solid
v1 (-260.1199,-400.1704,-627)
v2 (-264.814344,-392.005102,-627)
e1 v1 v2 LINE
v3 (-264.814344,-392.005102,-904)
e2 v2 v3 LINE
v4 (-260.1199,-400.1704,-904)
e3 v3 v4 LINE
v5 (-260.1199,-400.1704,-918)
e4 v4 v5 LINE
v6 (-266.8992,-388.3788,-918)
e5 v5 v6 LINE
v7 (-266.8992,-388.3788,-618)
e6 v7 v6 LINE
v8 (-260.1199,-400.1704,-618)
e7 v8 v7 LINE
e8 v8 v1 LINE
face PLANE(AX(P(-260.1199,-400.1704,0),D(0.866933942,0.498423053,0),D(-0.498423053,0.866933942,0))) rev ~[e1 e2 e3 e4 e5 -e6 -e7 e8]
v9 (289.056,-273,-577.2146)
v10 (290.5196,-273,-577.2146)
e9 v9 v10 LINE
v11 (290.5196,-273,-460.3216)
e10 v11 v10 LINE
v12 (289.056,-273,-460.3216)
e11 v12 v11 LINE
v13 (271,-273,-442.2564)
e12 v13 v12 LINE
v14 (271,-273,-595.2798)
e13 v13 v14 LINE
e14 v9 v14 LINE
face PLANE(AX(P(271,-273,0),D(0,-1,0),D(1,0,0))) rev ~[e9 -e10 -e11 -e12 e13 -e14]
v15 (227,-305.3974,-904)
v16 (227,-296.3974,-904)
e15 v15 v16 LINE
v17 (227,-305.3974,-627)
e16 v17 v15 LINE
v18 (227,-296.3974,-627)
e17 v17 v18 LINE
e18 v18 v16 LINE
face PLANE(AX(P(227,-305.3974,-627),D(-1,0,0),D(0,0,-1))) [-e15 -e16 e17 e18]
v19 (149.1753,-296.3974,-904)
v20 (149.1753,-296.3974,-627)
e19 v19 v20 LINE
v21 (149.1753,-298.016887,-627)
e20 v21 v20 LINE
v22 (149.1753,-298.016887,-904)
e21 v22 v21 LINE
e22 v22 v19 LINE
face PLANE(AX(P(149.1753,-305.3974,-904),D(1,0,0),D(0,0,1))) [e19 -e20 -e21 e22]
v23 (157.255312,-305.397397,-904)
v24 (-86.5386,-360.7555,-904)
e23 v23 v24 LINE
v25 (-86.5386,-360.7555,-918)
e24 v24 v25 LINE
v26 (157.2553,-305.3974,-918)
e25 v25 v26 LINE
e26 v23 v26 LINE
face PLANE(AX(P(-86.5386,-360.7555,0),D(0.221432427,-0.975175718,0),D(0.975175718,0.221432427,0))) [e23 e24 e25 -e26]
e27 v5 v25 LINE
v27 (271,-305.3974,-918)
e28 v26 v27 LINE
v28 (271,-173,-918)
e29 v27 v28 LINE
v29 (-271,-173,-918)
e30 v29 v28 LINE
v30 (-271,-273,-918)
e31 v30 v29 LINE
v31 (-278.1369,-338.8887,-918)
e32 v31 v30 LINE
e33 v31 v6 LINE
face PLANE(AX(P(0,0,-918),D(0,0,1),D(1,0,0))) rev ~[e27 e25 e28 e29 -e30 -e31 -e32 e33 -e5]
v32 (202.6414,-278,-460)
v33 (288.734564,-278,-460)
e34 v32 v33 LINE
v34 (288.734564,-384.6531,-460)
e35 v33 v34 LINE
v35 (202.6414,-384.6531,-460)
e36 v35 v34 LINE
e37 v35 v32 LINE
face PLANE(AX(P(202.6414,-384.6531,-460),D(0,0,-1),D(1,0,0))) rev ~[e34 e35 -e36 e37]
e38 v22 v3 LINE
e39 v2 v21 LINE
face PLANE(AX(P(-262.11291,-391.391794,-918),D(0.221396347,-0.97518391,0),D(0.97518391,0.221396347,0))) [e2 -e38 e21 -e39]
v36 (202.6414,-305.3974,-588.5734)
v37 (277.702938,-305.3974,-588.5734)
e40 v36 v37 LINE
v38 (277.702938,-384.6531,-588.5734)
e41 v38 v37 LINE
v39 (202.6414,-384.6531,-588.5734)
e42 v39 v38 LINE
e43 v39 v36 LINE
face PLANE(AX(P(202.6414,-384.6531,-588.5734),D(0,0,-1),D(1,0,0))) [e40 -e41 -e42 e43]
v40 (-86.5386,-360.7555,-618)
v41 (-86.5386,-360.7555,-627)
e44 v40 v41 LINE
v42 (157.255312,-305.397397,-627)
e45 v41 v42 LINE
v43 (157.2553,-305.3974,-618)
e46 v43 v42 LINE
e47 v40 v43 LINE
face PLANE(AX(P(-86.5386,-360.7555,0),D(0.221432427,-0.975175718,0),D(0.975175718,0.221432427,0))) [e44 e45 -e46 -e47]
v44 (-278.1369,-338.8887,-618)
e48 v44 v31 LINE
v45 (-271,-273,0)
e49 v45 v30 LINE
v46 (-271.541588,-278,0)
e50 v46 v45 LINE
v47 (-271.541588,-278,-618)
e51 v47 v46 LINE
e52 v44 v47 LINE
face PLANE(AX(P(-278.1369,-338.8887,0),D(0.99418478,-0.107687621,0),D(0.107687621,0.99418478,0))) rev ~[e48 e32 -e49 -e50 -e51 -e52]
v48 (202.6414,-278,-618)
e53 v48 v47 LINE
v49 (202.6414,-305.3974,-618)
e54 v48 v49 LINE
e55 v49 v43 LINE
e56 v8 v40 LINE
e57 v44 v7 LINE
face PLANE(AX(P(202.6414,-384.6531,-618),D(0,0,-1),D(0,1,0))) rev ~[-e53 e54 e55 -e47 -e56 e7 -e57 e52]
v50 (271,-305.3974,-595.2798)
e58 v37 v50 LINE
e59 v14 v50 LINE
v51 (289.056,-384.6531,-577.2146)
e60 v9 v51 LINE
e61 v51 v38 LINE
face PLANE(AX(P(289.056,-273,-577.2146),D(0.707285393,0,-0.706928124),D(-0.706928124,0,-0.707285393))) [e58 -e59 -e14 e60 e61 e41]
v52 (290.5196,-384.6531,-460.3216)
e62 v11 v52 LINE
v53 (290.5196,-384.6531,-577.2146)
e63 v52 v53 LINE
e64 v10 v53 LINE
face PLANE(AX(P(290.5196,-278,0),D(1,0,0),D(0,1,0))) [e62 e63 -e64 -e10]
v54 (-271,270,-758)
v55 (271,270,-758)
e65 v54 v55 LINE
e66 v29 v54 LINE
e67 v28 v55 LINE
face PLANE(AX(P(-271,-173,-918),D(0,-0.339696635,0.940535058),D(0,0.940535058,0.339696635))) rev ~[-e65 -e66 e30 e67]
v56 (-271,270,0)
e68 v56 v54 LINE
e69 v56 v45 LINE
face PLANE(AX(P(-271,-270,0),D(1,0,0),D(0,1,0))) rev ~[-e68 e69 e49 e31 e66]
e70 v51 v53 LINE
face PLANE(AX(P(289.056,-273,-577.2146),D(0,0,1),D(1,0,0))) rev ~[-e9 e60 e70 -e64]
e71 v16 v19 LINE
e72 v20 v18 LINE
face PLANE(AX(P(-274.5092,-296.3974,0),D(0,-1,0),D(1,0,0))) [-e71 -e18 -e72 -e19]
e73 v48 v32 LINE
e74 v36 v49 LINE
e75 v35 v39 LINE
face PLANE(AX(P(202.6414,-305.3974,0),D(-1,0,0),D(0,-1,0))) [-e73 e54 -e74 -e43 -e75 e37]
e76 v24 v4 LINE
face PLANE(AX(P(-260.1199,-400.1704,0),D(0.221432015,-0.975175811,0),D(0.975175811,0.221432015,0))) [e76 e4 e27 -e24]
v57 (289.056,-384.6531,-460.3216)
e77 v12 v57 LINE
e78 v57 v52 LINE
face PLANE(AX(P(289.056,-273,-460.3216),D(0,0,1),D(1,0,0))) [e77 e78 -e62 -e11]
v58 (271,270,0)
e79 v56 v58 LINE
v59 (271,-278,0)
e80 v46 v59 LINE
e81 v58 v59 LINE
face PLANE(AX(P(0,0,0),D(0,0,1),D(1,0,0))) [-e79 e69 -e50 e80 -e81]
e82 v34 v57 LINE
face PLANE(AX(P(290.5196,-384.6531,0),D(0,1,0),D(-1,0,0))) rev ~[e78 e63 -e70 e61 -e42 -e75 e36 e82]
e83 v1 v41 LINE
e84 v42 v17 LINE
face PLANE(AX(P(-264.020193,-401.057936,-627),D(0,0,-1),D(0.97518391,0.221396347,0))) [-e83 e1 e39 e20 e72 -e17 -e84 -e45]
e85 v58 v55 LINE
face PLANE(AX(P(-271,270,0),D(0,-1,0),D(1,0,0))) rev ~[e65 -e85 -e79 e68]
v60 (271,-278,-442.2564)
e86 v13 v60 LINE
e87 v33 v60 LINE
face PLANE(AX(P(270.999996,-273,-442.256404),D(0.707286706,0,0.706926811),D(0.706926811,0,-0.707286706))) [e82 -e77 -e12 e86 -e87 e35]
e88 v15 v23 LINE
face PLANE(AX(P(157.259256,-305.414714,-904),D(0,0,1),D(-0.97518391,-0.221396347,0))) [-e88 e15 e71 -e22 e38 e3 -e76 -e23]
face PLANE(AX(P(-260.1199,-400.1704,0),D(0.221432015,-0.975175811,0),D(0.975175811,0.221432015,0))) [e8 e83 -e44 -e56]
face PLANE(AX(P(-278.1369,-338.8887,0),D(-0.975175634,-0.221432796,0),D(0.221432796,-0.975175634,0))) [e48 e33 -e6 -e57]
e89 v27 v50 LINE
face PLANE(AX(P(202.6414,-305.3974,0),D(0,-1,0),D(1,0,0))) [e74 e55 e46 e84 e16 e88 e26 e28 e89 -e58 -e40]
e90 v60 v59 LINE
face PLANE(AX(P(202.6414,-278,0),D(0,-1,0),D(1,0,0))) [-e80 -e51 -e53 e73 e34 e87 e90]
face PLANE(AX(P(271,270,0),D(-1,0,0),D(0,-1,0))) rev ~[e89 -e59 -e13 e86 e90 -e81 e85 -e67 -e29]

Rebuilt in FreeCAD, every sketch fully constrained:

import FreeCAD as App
import Part
import Sketcher
Q = App.Units.Quantity


def add_polygon(sketch, points):
    """Adds a closed chain of lines whose ends are joined by coincident constraints."""
    first, n = sketch.GeometryCount, len(points)
    for a, b in zip(points, points[1:] + points[:1]):
        sketch.addGeometry(Part.LineSegment(App.Vector(*a, 0), App.Vector(*b, 0)), False)
    for i in range(n):
        sketch.addConstraint(Sketcher.Constraint("Coincident", first + i, 2, first + (i + 1) % n, 1))

doc = App.newDocument("Part")
body = doc.addObject("PartDesign::Body", "Body")

# Sketch on XY plane
sketch1 = body.newObject("Sketcher::SketchObject", "Sketch")
sketch1.AttachmentSupport = (doc.getObject("XY_Plane"), [""])
sketch1.MapMode = "FlatFace"
add_polygon(sketch1, [(271, -273), (271, 270), (-271, 270), (-271, -273), (-278.1369, -338.8887), (-266.8992, -388.3788), (-260.1199, -400.1704), (-86.5386, -360.7555), (157.2553, -305.3974), (202.6414, -305.3974), (202.6414, -384.6531), (290.5196, -384.6531), (290.5196, -273)])  # lines 0-12
sketch1.addConstraint(Sketcher.Constraint("Vertical", 0))
sketch1.addConstraint(Sketcher.Constraint("Horizontal", 1))
sketch1.addConstraint(Sketcher.Constraint("Vertical", 2))
sketch1.addConstraint(Sketcher.Constraint("Horizontal", 8))
sketch1.addConstraint(Sketcher.Constraint("Vertical", 9))
sketch1.addConstraint(Sketcher.Constraint("Horizontal", 10))
sketch1.addConstraint(Sketcher.Constraint("Vertical", 11))
sketch1.addConstraint(Sketcher.Constraint("Horizontal", 12))
sketch1.addConstraint(Sketcher.Constraint("DistanceX", 1, 2, 1, 1, Q("542 mm")))
sketch1.addConstraint(Sketcher.Constraint("DistanceY", 0, 1, 0, 2, Q("543 mm")))
sketch1.addConstraint(Sketcher.Constraint("DistanceY", 2, 2, 2, 1, Q("543 mm")))
sketch1.addConstraint(Sketcher.Constraint("Distance", 6, Q("178 mm")))
sketch1.addConstraint(Sketcher.Constraint("Distance", 7, Q("250 mm")))
sketch1.addConstraint(Sketcher.Constraint("DistanceX", -1, 1, 0, 2, Q("271 mm")))
sketch1.addConstraint(Sketcher.Constraint("DistanceY", -1, 1, 0, 2, Q("270 mm")))
sketch1.addConstraint(Sketcher.Constraint("Distance", 4, Q("50.75 mm")))
sketch1.addConstraint(Sketcher.Constraint("DistanceX", 8, 1, 8, 2, Q("45.386 mm")))
sketch1.addConstraint(Sketcher.Constraint("DistanceY", 11, 1, 11, 2, Q("111.653 mm")))
sketch1.addConstraint(Sketcher.Constraint("DistanceX", 5, 2, -1, 1, Q("260.12 mm")))
sketch1.addConstraint(Sketcher.Constraint("DistanceY", 4, 2, 3, 2, Q("49.49 mm")))
sketch1.addConstraint(Sketcher.Constraint("DistanceX", 6, 2, 8, 2, Q("289.18 mm")))
sketch1.addConstraint(Sketcher.Constraint("Distance", 3, Q("66.274 mm")))
sketch1.addConstraint(Sketcher.Constraint("DistanceX", 10, 1, 10, 2, Q("87.8782 mm")))
sketch1.addConstraint(Sketcher.Constraint("DistanceX", 12, 2, 12, 1, Q("19.5196 mm")))
sketch1.addConstraint(Sketcher.Constraint("DistanceY", 9, 2, 9, 1, Q("79.2557 mm")))
sketch1.addConstraint(Sketcher.Constraint("DistanceX", 3, 2, -1, 1, Q("278.137 mm")))
pad1 = body.newObject("PartDesign::Pad", "Pad")
pad1.Profile = sketch1
pad1.Length = 918
pad1.Reversed = True

# Sketch on YZ plane
sketch2 = body.newObject("Sketcher::SketchObject", "Sketch001")
sketch2.AttachmentSupport = (doc.getObject("YZ_Plane"), [""])
sketch2.MapMode = "FlatFace"
sketch2.AttachmentOffset = App.Placement(App.Vector(0, 0, 202.6414), App.Rotation())
add_polygon(sketch2, [(-536, -618), (-536, 0), (-278, 0), (-278, -618)])  # lines 0-3
sketch2.addConstraint(Sketcher.Constraint("Vertical", 0))
sketch2.addConstraint(Sketcher.Constraint("Horizontal", 1))
sketch2.addConstraint(Sketcher.Constraint("Vertical", 2))
sketch2.addConstraint(Sketcher.Constraint("Horizontal", 3))
sketch2.addConstraint(Sketcher.Constraint("PointOnObject", 0, 2, -1))
sketch2.addConstraint(Sketcher.Constraint("DistanceY", 0, 1, 0, 2, Q("618 mm")))
sketch2.addConstraint(Sketcher.Constraint("DistanceX", 1, 2, -1, 1, Q("278 mm")))
sketch2.addConstraint(Sketcher.Constraint("DistanceX", 1, 1, 1, 2, Q("258.37 mm")))
pocket1 = body.newObject("PartDesign::Pocket", "Pocket")
pocket1.Profile = sketch2
pocket1.Type = "ThroughAll"

# Sketch on XZ plane
sketch3 = body.newObject("Sketcher::SketchObject", "Sketch002")
sketch3.AttachmentSupport = (doc.getObject("XZ_Plane"), [""])
sketch3.MapMode = "FlatFace"
sketch3.AttachmentOffset = App.Placement(App.Vector(0, 0, 384.6531), App.Rotation())
add_polygon(sketch3, [(203, 0), (203, -460), (291, -460), (291, 0)])  # lines 0-3
sketch3.addConstraint(Sketcher.Constraint("Vertical", 0))
sketch3.addConstraint(Sketcher.Constraint("Horizontal", 1))
sketch3.addConstraint(Sketcher.Constraint("Vertical", 2))
sketch3.addConstraint(Sketcher.Constraint("Horizontal", 3))
sketch3.addConstraint(Sketcher.Constraint("PointOnObject", 2, 2, -1))
sketch3.addConstraint(Sketcher.Constraint("DistanceY", 0, 2, 0, 1, Q("460 mm")))
sketch3.addConstraint(Sketcher.Constraint("DistanceX", 1, 1, 1, 2, Q("87.8782 mm")))
sketch3.addConstraint(Sketcher.Constraint("DistanceX", -1, 1, 0, 2, Q("202.6414 mm")))
pocket2 = body.newObject("PartDesign::Pocket", "Pocket001")
pocket2.Profile = sketch3
pocket2.Length = 106.6531

# Sketch on XZ plane
sketch4 = body.newObject("Sketcher::SketchObject", "Sketch003")
sketch4.AttachmentSupport = (doc.getObject("XZ_Plane"), [""])
sketch4.MapMode = "FlatFace"
sketch4.AttachmentOffset = App.Placement(App.Vector(0, 0, 273), App.Rotation())
add_polygon(sketch4, [(271, 0), (290.5, 0), (290.5, -460.3), (289.1, -460.3), (271, -442.3)])  # lines 0-4
add_polygon(sketch4, [(289.1, -577.2), (290.5, -577.2), (290.5, -918), (271, -918), (271, -595.3)])  # lines 5-9
sketch4.addConstraint(Sketcher.Constraint("Horizontal", 0))
sketch4.addConstraint(Sketcher.Constraint("Vertical", 1))
sketch4.addConstraint(Sketcher.Constraint("Horizontal", 2))
sketch4.addConstraint(Sketcher.Constraint("Vertical", 4))
sketch4.addConstraint(Sketcher.Constraint("Horizontal", 5))
sketch4.addConstraint(Sketcher.Constraint("Vertical", 6))
sketch4.addConstraint(Sketcher.Constraint("Horizontal", 7))
sketch4.addConstraint(Sketcher.Constraint("Vertical", 8))
sketch4.addConstraint(Sketcher.Constraint("PointOnObject", 0, 2, -1))
sketch4.addConstraint(Sketcher.Constraint("Vertical", 1, 2, 5, 2))
sketch4.addConstraint(Sketcher.Constraint("Vertical", 4, 2, 7, 2))
sketch4.addConstraint(Sketcher.Constraint("Vertical", 2, 2, 9, 2))
sketch4.addConstraint(Sketcher.Constraint("Equal", 3, 9))
sketch4.addConstraint(Sketcher.Constraint("DistanceX", -1, 1, 3, 2, Q("271 mm")))
sketch4.addConstraint(Sketcher.Constraint("DistanceY", 6, 2, -1, 1, Q("918 mm")))
sketch4.addConstraint(Sketcher.Constraint("DistanceX", 0, 1, 0, 2, Q("19.5196 mm")))
sketch4.addConstraint(Sketcher.Constraint("DistanceX", 2, 2, 2, 1, Q("1.4636 mm")))
sketch4.addConstraint(Sketcher.Constraint("DistanceY", 1, 2, 1, 1, Q("460.3216 mm")))
sketch4.addConstraint(Sketcher.Constraint("DistanceY", 4, 1, 4, 2, Q("442.2564 mm")))
sketch4.addConstraint(Sketcher.Constraint("DistanceY", 6, 2, 6, 1, Q("340.7854 mm")))
pocket3 = body.newObject("PartDesign::Pocket", "Pocket002")
pocket3.Profile = sketch4
pocket3.Length = 111.6531
pocket3.Reversed = True

# Sketch on an angled plane
sketch5 = body.newObject("Sketcher::SketchObject", "Sketch004")
sketch5.Placement = App.Placement(App.Vector(-260.1199, -400.1704, -918), App.Rotation(App.Vector(0.97518391, 0.221396347, 0), App.Vector(0, 0, 1.000000001), App.Vector(0.221396347, -0.97518391, 0), "ZXY"))
add_polygon(sketch5, [(428, 291), (-4, 291), (-4, 14), (428, 14)])  # lines 0-3
sketch5.addConstraint(Sketcher.Constraint("Horizontal", 0))
sketch5.addConstraint(Sketcher.Constraint("Vertical", 1))
sketch5.addConstraint(Sketcher.Constraint("Horizontal", 2))
sketch5.addConstraint(Sketcher.Constraint("Vertical", 3))
sketch5.addConstraint(Sketcher.Constraint("DistanceX", 0, 2, 0, 1, Q("432 mm")))
sketch5.addConstraint(Sketcher.Constraint("DistanceY", 1, 2, 1, 1, Q("277 mm")))
sketch5.addConstraint(Sketcher.Constraint("DistanceX", 0, 2, -1, 1, Q("4 mm")))
sketch5.addConstraint(Sketcher.Constraint("DistanceY", -1, 1, 0, 2, Q("291 mm")))
pocket4 = body.newObject("PartDesign::Pocket", "Pocket003")
pocket4.Profile = sketch5
pocket4.Length = 9

# Sketch on XZ plane
sketch6 = body.newObject("Sketcher::SketchObject", "Sketch005")
sketch6.AttachmentSupport = (doc.getObject("XZ_Plane"), [""])
sketch6.MapMode = "FlatFace"
sketch6.AttachmentOffset = App.Placement(App.Vector(0, 0, 305.3974), App.Rotation())
add_polygon(sketch6, [(227, -627), (149, -627), (149, -904), (227, -904)])  # lines 0-3
sketch6.addConstraint(Sketcher.Constraint("Horizontal", 0))
sketch6.addConstraint(Sketcher.Constraint("Vertical", 1))
sketch6.addConstraint(Sketcher.Constraint("Horizontal", 2))
sketch6.addConstraint(Sketcher.Constraint("Vertical", 3))
sketch6.addConstraint(Sketcher.Constraint("DistanceY", 1, 2, 1, 1, Q("277 mm")))
sketch6.addConstraint(Sketcher.Constraint("DistanceY", 0, 2, -1, 1, Q("627 mm")))
sketch6.addConstraint(Sketcher.Constraint("DistanceX", -1, 1, 2, 2, Q("227 mm")))
sketch6.addConstraint(Sketcher.Constraint("DistanceX", 0, 2, 0, 1, Q("77.8247 mm")))
pocket5 = body.newObject("PartDesign::Pocket", "Pocket004")
pocket5.Profile = sketch6
pocket5.Length = 9

# Sketch on XZ plane
sketch7 = body.newObject("Sketcher::SketchObject", "Sketch006")
sketch7.AttachmentSupport = (doc.getObject("XZ_Plane"), [""])
sketch7.MapMode = "FlatFace"
sketch7.AttachmentOffset = App.Placement(App.Vector(0, 0, 384.6531), App.Rotation())
add_polygon(sketch7, [(203, -589), (203, -918), (291, -918), (291, -589)])  # lines 0-3
sketch7.addConstraint(Sketcher.Constraint("Vertical", 0))
sketch7.addConstraint(Sketcher.Constraint("Horizontal", 1))
sketch7.addConstraint(Sketcher.Constraint("Vertical", 2))
sketch7.addConstraint(Sketcher.Constraint("Horizontal", 3))
sketch7.addConstraint(Sketcher.Constraint("DistanceY", 0, 2, -1, 1, Q("918 mm")))
sketch7.addConstraint(Sketcher.Constraint("DistanceX", 1, 1, 1, 2, Q("87.8782 mm")))
sketch7.addConstraint(Sketcher.Constraint("DistanceY", 0, 2, 0, 1, Q("329.4266 mm")))
sketch7.addConstraint(Sketcher.Constraint("DistanceX", -1, 1, 0, 2, Q("202.6414 mm")))
pocket6 = body.newObject("PartDesign::Pocket", "Pocket005")
pocket6.Profile = sketch7
pocket6.Length = 79.2557

# Sketch on YZ plane
sketch8 = body.newObject("Sketcher::SketchObject", "Sketch007")
sketch8.AttachmentSupport = (doc.getObject("YZ_Plane"), [""])
sketch8.MapMode = "FlatFace"
sketch8.AttachmentOffset = App.Placement(App.Vector(0, 0, -271), App.Rotation())
add_polygon(sketch8, [(270, -758), (270, -918), (-173, -918)])  # lines 0-2
sketch8.addConstraint(Sketcher.Constraint("Vertical", 0))
sketch8.addConstraint(Sketcher.Constraint("Horizontal", 1))
sketch8.addConstraint(Sketcher.Constraint("DistanceY", 0, 2, 0, 1, Q("160 mm")))
sketch8.addConstraint(Sketcher.Constraint("DistanceX", 1, 2, 1, 1, Q("443 mm")))
sketch8.addConstraint(Sketcher.Constraint("DistanceX", -1, 1, 0, 2, Q("270 mm")))
sketch8.addConstraint(Sketcher.Constraint("DistanceY", 0, 2, -1, 1, Q("918 mm")))
pocket7 = body.newObject("PartDesign::Pocket", "Pocket006")
pocket7.Profile = sketch8
pocket7.Type = "ThroughAll"
pocket7.Reversed = True

doc.recompute()
